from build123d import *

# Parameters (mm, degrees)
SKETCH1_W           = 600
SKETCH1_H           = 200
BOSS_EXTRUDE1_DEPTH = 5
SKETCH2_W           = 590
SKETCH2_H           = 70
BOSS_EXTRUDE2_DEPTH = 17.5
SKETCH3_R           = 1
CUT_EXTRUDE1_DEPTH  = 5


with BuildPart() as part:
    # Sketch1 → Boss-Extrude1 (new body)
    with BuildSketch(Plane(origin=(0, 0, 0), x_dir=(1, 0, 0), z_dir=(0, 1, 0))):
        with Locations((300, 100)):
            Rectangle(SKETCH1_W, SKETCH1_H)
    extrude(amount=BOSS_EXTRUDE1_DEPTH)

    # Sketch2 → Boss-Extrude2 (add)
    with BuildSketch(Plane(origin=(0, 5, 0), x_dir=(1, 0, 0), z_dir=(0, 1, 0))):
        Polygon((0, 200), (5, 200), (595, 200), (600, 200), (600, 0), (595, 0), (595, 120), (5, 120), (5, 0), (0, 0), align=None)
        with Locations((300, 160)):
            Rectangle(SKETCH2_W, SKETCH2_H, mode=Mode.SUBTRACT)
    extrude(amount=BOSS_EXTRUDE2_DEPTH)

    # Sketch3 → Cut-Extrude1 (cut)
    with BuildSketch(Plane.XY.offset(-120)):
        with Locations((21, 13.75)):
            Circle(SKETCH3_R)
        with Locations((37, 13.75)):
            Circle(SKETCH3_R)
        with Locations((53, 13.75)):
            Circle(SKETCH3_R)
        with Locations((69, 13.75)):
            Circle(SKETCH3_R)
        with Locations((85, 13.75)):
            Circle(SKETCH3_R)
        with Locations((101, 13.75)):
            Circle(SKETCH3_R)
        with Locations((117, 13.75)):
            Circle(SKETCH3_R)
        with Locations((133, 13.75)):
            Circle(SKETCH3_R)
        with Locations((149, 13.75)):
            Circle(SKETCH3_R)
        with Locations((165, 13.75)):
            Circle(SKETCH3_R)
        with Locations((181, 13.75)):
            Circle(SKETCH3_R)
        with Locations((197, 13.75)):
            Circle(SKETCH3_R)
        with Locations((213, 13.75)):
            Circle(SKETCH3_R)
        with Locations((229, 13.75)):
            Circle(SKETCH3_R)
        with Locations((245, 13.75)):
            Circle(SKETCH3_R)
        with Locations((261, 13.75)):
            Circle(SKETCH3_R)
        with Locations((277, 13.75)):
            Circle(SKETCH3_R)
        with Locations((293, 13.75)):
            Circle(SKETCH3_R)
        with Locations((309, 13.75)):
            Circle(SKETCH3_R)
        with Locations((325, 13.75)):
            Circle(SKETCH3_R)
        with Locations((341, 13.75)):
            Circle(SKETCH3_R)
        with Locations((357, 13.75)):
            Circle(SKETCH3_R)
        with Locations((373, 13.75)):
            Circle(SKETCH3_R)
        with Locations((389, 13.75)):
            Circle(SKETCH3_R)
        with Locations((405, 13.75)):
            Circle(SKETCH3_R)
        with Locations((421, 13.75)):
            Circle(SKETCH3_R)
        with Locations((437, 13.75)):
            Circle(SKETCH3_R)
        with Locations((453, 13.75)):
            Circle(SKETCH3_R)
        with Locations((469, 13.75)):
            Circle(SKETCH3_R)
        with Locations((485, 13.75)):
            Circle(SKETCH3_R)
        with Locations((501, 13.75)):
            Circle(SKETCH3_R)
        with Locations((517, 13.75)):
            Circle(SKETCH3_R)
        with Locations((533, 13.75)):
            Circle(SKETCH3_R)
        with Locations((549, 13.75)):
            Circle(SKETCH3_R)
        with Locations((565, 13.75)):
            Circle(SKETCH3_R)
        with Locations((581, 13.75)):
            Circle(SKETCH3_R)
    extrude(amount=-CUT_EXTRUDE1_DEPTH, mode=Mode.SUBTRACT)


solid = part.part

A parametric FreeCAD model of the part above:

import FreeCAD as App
import Part
import Sketcher

V = App.Vector


def add_polygon(sketch, points):
    """Adds a closed chain of lines whose ends are joined by coincident constraints."""
    first, n = sketch.GeometryCount, len(points)
    for a, b in zip(points, points[1:] + points[:1]):
        sketch.addGeometry(Part.LineSegment(App.Vector(*a, 0), App.Vector(*b, 0)), False)
    for i in range(n):
        sketch.addConstraint(Sketcher.Constraint("Coincident", first + i, 2, first + (i + 1) % n, 1))

doc = App.newDocument("Part")
body = doc.addObject("PartDesign::Body", "Body")

# Sketch on XZ plane
sketch1 = body.newObject("Sketcher::SketchObject", "Sketch")
sketch1.AttachmentSupport = (doc.getObject("XZ_Plane"), [""])
sketch1.MapMode = "FlatFace"
add_polygon(sketch1, [(0, -200), (0, 0), (600, 0), (600, -200)])  # lines 0-3
sketch1.addConstraint(Sketcher.Constraint("Vertical", 0))
sketch1.addConstraint(Sketcher.Constraint("Horizontal", 1))
sketch1.addConstraint(Sketcher.Constraint("Vertical", 2))
sketch1.addConstraint(Sketcher.Constraint("Horizontal", 3))
sketch1.addConstraint(Sketcher.Constraint("Coincident", 0, 2, -1, 1))
sketch1.addConstraint(Sketcher.Constraint("DistanceX", 1, 1, 1, 2, 600.0))
sketch1.addConstraint(Sketcher.Constraint("DistanceY", 0, 1, 0, 2, 200.0))
pad1 = body.newObject("PartDesign::Pad", "Pad")
pad1.Profile = sketch1
pad1.Length = 5
pad1.Reversed = True

# Sketch on XZ plane
sketch2 = body.newObject("Sketcher::SketchObject", "Sketch001")
sketch2.AttachmentSupport = (doc.getObject("XZ_Plane"), [""])
sketch2.MapMode = "FlatFace"
sketch2.AttachmentOffset = App.Placement(V(0, 0, -5), App.Rotation())
add_polygon(sketch2, [(600, -200), (0, -200), (0, 0), (5, 0), (5, -120), (595, -120), (595, 0), (600, 0)])  # lines 0-7
add_polygon(sketch2, [(5, -125), (5, -195), (595, -195), (595, -125)])  # lines 8-11
sketch2.addConstraint(Sketcher.Constraint("Horizontal", 0))
sketch2.addConstraint(Sketcher.Constraint("Vertical", 1))
sketch2.addConstraint(Sketcher.Constraint("Horizontal", 2))
sketch2.addConstraint(Sketcher.Constraint("Vertical", 3))
sketch2.addConstraint(Sketcher.Constraint("Horizontal", 4))
sketch2.addConstraint(Sketcher.Constraint("Vertical", 5))
sketch2.addConstraint(Sketcher.Constraint("Horizontal", 6))
sketch2.addConstraint(Sketcher.Constraint("Vertical", 7))
sketch2.addConstraint(Sketcher.Constraint("Vertical", 8))
sketch2.addConstraint(Sketcher.Constraint("Horizontal", 9))
sketch2.addConstraint(Sketcher.Constraint("Vertical", 10))
sketch2.addConstraint(Sketcher.Constraint("Horizontal", 11))
sketch2.addConstraint(Sketcher.Constraint("Coincident", 1, 2, -1, 1))
sketch2.addConstraint(Sketcher.Constraint("PointOnObject", 5, 2, -1))
sketch2.addConstraint(Sketcher.Constraint("Vertical", 3, 2, 8, 2))
sketch2.addConstraint(Sketcher.Constraint("Vertical", 5, 2, 9, 2))
sketch2.addConstraint(Sketcher.Constraint("Equal", 2, 6))
sketch2.addConstraint(Sketcher.Constraint("DistanceX", 0, 2, 0, 1, 600.0))
sketch2.addConstraint(Sketcher.Constraint("DistanceX", 2, 1, 2, 2, 5.0))
sketch2.addConstraint(Sketcher.Constraint("DistanceY", 1, 1, 1, 2, 200.0))
sketch2.addConstraint(Sketcher.Constraint("DistanceY", 3, 2, 3, 1, 120.0))
sketch2.addConstraint(Sketcher.Constraint("DistanceY", 8, 2, 8, 1, 70.0))
sketch2.addConstraint(Sketcher.Constraint("DistanceY", 8, 2, -1, 1, 195.0))
pad2 = body.newObject("PartDesign::Pad", "Pad001")
pad2.Profile = sketch2
pad2.Length = 17.5
pad2.Reversed = True

# Sketch on XY plane
sketch3 = body.newObject("Sketcher::SketchObject", "Sketch002")
sketch3.AttachmentSupport = (doc.getObject("XY_Plane"), [""])
sketch3.MapMode = "FlatFace"
sketch3.AttachmentOffset = App.Placement(V(0, 0, -120), App.Rotation())
sketch3.addGeometry(Part.Circle(V(21, 13.8, 0), V(0, 0, 1), 1), False)
sketch3.addGeometry(Part.Circle(V(37, 13.8, 0), V(0, 0, 1), 1), False)
sketch3.addGeometry(Part.Circle(V(53, 13.8, 0), V(0, 0, 1), 1), False)
sketch3.addGeometry(Part.Circle(V(69, 13.8, 0), V(0, 0, 1), 1), False)
sketch3.addGeometry(Part.Circle(V(85, 13.8, 0), V(0, 0, 1), 1), False)
sketch3.addGeometry(Part.Circle(V(101, 13.8, 0), V(0, 0, 1), 1), False)
sketch3.addGeometry(Part.Circle(V(117, 13.8, 0), V(0, 0, 1), 1), False)
sketch3.addGeometry(Part.Circle(V(133, 13.8, 0), V(0, 0, 1), 1), False)
sketch3.addGeometry(Part.Circle(V(149, 13.8, 0), V(0, 0, 1), 1), False)
sketch3.addGeometry(Part.Circle(V(165, 13.8, 0), V(0, 0, 1), 1), False)
sketch3.addGeometry(Part.Circle(V(181, 13.8, 0), V(0, 0, 1), 1), False)
sketch3.addGeometry(Part.Circle(V(197, 13.8, 0), V(0, 0, 1), 1), False)
sketch3.addGeometry(Part.Circle(V(213, 13.8, 0), V(0, 0, 1), 1), False)
sketch3.addGeometry(Part.Circle(V(229, 13.8, 0), V(0, 0, 1), 1), False)
sketch3.addGeometry(Part.Circle(V(245, 13.8, 0), V(0, 0, 1), 1), False)
sketch3.addGeometry(Part.Circle(V(261, 13.8, 0), V(0, 0, 1), 1), False)
sketch3.addGeometry(Part.Circle(V(277, 13.8, 0), V(0, 0, 1), 1), False)
sketch3.addGeometry(Part.Circle(V(293, 13.8, 0), V(0, 0, 1), 1), False)
sketch3.addGeometry(Part.Circle(V(309, 13.8, 0), V(0, 0, 1), 1), False)
sketch3.addGeometry(Part.Circle(V(325, 13.8, 0), V(0, 0, 1), 1), False)
sketch3.addGeometry(Part.Circle(V(341, 13.8, 0), V(0, 0, 1), 1), False)
sketch3.addGeometry(Part.Circle(V(357, 13.8, 0), V(0, 0, 1), 1), False)
sketch3.addGeometry(Part.Circle(V(373, 13.8, 0), V(0, 0, 1), 1), False)
sketch3.addGeometry(Part.Circle(V(389, 13.8, 0), V(0, 0, 1), 1), False)
sketch3.addGeometry(Part.Circle(V(405, 13.8, 0), V(0, 0, 1), 1), False)
sketch3.addGeometry(Part.Circle(V(421, 13.8, 0), V(0, 0, 1), 1), False)
sketch3.addGeometry(Part.Circle(V(437, 13.8, 0), V(0, 0, 1), 1), False)
sketch3.addGeometry(Part.Circle(V(453, 13.8, 0), V(0, 0, 1), 1), False)
sketch3.addGeometry(Part.Circle(V(469, 13.8, 0), V(0, 0, 1), 1), False)
sketch3.addGeometry(Part.Circle(V(485, 13.8, 0), V(0, 0, 1), 1), False)
sketch3.addGeometry(Part.Circle(V(501, 13.8, 0), V(0, 0, 1), 1), False)
sketch3.addGeometry(Part.Circle(V(517, 13.8, 0), V(0, 0, 1), 1), False)
sketch3.addGeometry(Part.Circle(V(533, 13.8, 0), V(0, 0, 1), 1), False)
sketch3.addGeometry(Part.Circle(V(549, 13.8, 0), V(0, 0, 1), 1), False)
sketch3.addGeometry(Part.Circle(V(565, 13.8, 0), V(0, 0, 1), 1), False)
sketch3.addGeometry(Part.Circle(V(581, 13.8, 0), V(0, 0, 1), 1), False)
sketch3.addConstraint(Sketcher.Constraint("Equal", 0, 1))
sketch3.addConstraint(Sketcher.Constraint("Equal", 1, 2))
sketch3.addConstraint(Sketcher.Constraint("Equal", 2, 3))
sketch3.addConstraint(Sketcher.Constraint("Equal", 3, 4))
sketch3.addConstraint(Sketcher.Constraint("Equal", 4, 5))
sketch3.addConstraint(Sketcher.Constraint("Equal", 5, 6))
sketch3.addConstraint(Sketcher.Constraint("Equal", 6, 7))
sketch3.addConstraint(Sketcher.Constraint("Equal", 7, 8))
sketch3.addConstraint(Sketcher.Constraint("Equal", 8, 9))
sketch3.addConstraint(Sketcher.Constraint("Equal", 9, 10))
sketch3.addConstraint(Sketcher.Constraint("Equal", 10, 11))
sketch3.addConstraint(Sketcher.Constraint("Equal", 11, 12))
sketch3.addConstraint(Sketcher.Constraint("Equal", 12, 13))
sketch3.addConstraint(Sketcher.Constraint("Equal", 13, 14))
sketch3.addConstraint(Sketcher.Constraint("Equal", 14, 15))
sketch3.addConstraint(Sketcher.Constraint("Equal", 15, 16))
sketch3.addConstraint(Sketcher.Constraint("Equal", 16, 17))
sketch3.addConstraint(Sketcher.Constraint("Equal", 17, 18))
sketch3.addConstraint(Sketcher.Constraint("Equal", 18, 19))
sketch3.addConstraint(Sketcher.Constraint("Equal", 19, 20))
sketch3.addConstraint(Sketcher.Constraint("Equal", 20, 21))
sketch3.addConstraint(Sketcher.Constraint("Equal", 21, 22))
sketch3.addConstraint(Sketcher.Constraint("Equal", 22, 23))
sketch3.addConstraint(Sketcher.Constraint("Equal", 23, 24))
sketch3.addConstraint(Sketcher.Constraint("Equal", 24, 25))
sketch3.addConstraint(Sketcher.Constraint("Equal", 25, 26))
sketch3.addConstraint(Sketcher.Constraint("Equal", 26, 27))
sketch3.addConstraint(Sketcher.Constraint("Equal", 27, 28))
sketch3.addConstraint(Sketcher.Constraint("Equal", 28, 29))
sketch3.addConstraint(Sketcher.Constraint("Equal", 29, 30))
sketch3.addConstraint(Sketcher.Constraint("Equal", 30, 31))
sketch3.addConstraint(Sketcher.Constraint("Equal", 31, 32))
sketch3.addConstraint(Sketcher.Constraint("Equal", 32, 33))
sketch3.addConstraint(Sketcher.Constraint("Equal", 33, 34))
sketch3.addConstraint(Sketcher.Constraint("Equal", 34, 35))
sketch3.addConstraint(Sketcher.Constraint("Horizontal", 0, 3, 1, 3))
sketch3.addConstraint(Sketcher.Constraint("Horizontal", 1, 3, 2, 3))
sketch3.addConstraint(Sketcher.Constraint("Horizontal", 2, 3, 3, 3))
sketch3.addConstraint(Sketcher.Constraint("Horizontal", 3, 3, 4, 3))
sketch3.addConstraint(Sketcher.Constraint("Horizontal", 4, 3, 5, 3))
sketch3.addConstraint(Sketcher.Constraint("Horizontal", 5, 3, 6, 3))
sketch3.addConstraint(Sketcher.Constraint("Horizontal", 6, 3, 7, 3))
sketch3.addConstraint(Sketcher.Constraint("Horizontal", 7, 3, 8, 3))
sketch3.addConstraint(Sketcher.Constraint("Horizontal", 8, 3, 9, 3))
sketch3.addConstraint(Sketcher.Constraint("Horizontal", 9, 3, 10, 3))
sketch3.addConstraint(Sketcher.Constraint("Horizontal", 10, 3, 11, 3))
sketch3.addConstraint(Sketcher.Constraint("Horizontal", 11, 3, 12, 3))
sketch3.addConstraint(Sketcher.Constraint("Horizontal", 12, 3, 13, 3))
sketch3.addConstraint(Sketcher.Constraint("Horizontal", 13, 3, 14, 3))
sketch3.addConstraint(Sketcher.Constraint("Horizontal", 14, 3, 15, 3))
sketch3.addConstraint(Sketcher.Constraint("Horizontal", 15, 3, 16, 3))
sketch3.addConstraint(Sketcher.Constraint("Horizontal", 16, 3, 17, 3))
sketch3.addConstraint(Sketcher.Constraint("Horizontal", 17, 3, 18, 3))
sketch3.addConstraint(Sketcher.Constraint("Horizontal", 18, 3, 19, 3))
sketch3.addConstraint(Sketcher.Constraint("Horizontal", 19, 3, 20, 3))
sketch3.addConstraint(Sketcher.Constraint("Horizontal", 20, 3, 21, 3))
sketch3.addConstraint(Sketcher.Constraint("Horizontal", 21, 3, 22, 3))
sketch3.addConstraint(Sketcher.Constraint("Horizontal", 22, 3, 23, 3))
sketch3.addConstraint(Sketcher.Constraint("Horizontal", 23, 3, 24, 3))
sketch3.addConstraint(Sketcher.Constraint("Horizontal", 24, 3, 25, 3))
sketch3.addConstraint(Sketcher.Constraint("Horizontal", 25, 3, 26, 3))
sketch3.addConstraint(Sketcher.Constraint("Horizontal", 26, 3, 27, 3))
sketch3.addConstraint(Sketcher.Constraint("Horizontal", 27, 3, 28, 3))
sketch3.addConstraint(Sketcher.Constraint("Horizontal", 28, 3, 29, 3))
sketch3.addConstraint(Sketcher.Constraint("Horizontal", 29, 3, 30, 3))
sketch3.addConstraint(Sketcher.Constraint("Horizontal", 30, 3, 31, 3))
sketch3.addConstraint(Sketcher.Constraint("Horizontal", 31, 3, 32, 3))
sketch3.addConstraint(Sketcher.Constraint("Horizontal", 32, 3, 33, 3))
sketch3.addConstraint(Sketcher.Constraint("Horizontal", 33, 3, 34, 3))
sketch3.addConstraint(Sketcher.Constraint("Horizontal", 34, 3, 35, 3))
sketch3.addConstraint(Sketcher.Constraint("Diameter", 0, 2.0))
sketch3.addConstraint(Sketcher.Constraint("DistanceX", -1, 1, 0, 3, 21.0))
sketch3.addConstraint(Sketcher.Constraint("DistanceX", -1, 1, 1, 3, 37.0))
sketch3.addConstraint(Sketcher.Constraint("DistanceX", -1, 1, 2, 3, 53.0))
sketch3.addConstraint(Sketcher.Constraint("DistanceX", -1, 1, 3, 3, 69.0))
sketch3.addConstraint(Sketcher.Constraint("DistanceX", -1, 1, 4, 3, 85.0))
sketch3.addConstraint(Sketcher.Constraint("DistanceX", -1, 1, 5, 3, 101.0))
sketch3.addConstraint(Sketcher.Constraint("DistanceX", -1, 1, 6, 3, 117.0))
sketch3.addConstraint(Sketcher.Constraint("DistanceX", -1, 1, 7, 3, 133.0))
sketch3.addConstraint(Sketcher.Constraint("DistanceX", -1, 1, 8, 3, 149.0))
sketch3.addConstraint(Sketcher.Constraint("DistanceX", -1, 1, 9, 3, 165.0))
sketch3.addConstraint(Sketcher.Constraint("DistanceX", -1, 1, 10, 3, 181.0))
sketch3.addConstraint(Sketcher.Constraint("DistanceX", -1, 1, 11, 3, 197.0))
sketch3.addConstraint(Sketcher.Constraint("DistanceX", -1, 1, 12, 3, 213.0))
sketch3.addConstraint(Sketcher.Constraint("DistanceX", -1, 1, 13, 3, 229.0))
sketch3.addConstraint(Sketcher.Constraint("DistanceX", -1, 1, 14, 3, 245.0))
sketch3.addConstraint(Sketcher.Constraint("DistanceX", -1, 1, 15, 3, 261.0))
sketch3.addConstraint(Sketcher.Constraint("DistanceX", -1, 1, 16, 3, 277.0))
sketch3.addConstraint(Sketcher.Constraint("DistanceX", -1, 1, 17, 3, 293.0))
sketch3.addConstraint(Sketcher.Constraint("DistanceX", -1, 1, 18, 3, 309.0))
sketch3.addConstraint(Sketcher.Constraint("DistanceX", -1, 1, 19, 3, 325.0))
sketch3.addConstraint(Sketcher.Constraint("DistanceX", -1, 1, 20, 3, 341.0))
sketch3.addConstraint(Sketcher.Constraint("DistanceX", -1, 1, 21, 3, 357.0))
sketch3.addConstraint(Sketcher.Constraint("DistanceX", -1, 1, 22, 3, 373.0))
sketch3.addConstraint(Sketcher.Constraint("DistanceX", -1, 1, 23, 3, 389.0))
sketch3.addConstraint(Sketcher.Constraint("DistanceX", -1, 1, 24, 3, 405.0))
sketch3.addConstraint(Sketcher.Constraint("DistanceX", -1, 1, 25, 3, 421.0))
sketch3.addConstraint(Sketcher.Constraint("DistanceX", -1, 1, 26, 3, 437.0))
sketch3.addConstraint(Sketcher.Constraint("DistanceX", -1, 1, 27, 3, 453.0))
sketch3.addConstraint(Sketcher.Constraint("DistanceX", -1, 1, 28, 3, 469.0))
sketch3.addConstraint(Sketcher.Constraint("DistanceX", -1, 1, 29, 3, 485.0))
sketch3.addConstraint(Sketcher.Constraint("DistanceX", -1, 1, 30, 3, 501.0))
sketch3.addConstraint(Sketcher.Constraint("DistanceX", -1, 1, 31, 3, 517.0))
sketch3.addConstraint(Sketcher.Constraint("DistanceX", -1, 1, 32, 3, 533.0))
sketch3.addConstraint(Sketcher.Constraint("DistanceX", -1, 1, 33, 3, 549.0))
sketch3.addConstraint(Sketcher.Constraint("DistanceX", -1, 1, 34, 3, 565.0))
sketch3.addConstraint(Sketcher.Constraint("DistanceX", -1, 1, 35, 3, 581.0))
sketch3.addConstraint(Sketcher.Constraint("DistanceY", -1, 1, 0, 3, 13.75))
pocket1 = body.newObject("PartDesign::Pocket", "Pocket")
pocket1.Profile = sketch3
pocket1.Length = 5

doc.recompute()
